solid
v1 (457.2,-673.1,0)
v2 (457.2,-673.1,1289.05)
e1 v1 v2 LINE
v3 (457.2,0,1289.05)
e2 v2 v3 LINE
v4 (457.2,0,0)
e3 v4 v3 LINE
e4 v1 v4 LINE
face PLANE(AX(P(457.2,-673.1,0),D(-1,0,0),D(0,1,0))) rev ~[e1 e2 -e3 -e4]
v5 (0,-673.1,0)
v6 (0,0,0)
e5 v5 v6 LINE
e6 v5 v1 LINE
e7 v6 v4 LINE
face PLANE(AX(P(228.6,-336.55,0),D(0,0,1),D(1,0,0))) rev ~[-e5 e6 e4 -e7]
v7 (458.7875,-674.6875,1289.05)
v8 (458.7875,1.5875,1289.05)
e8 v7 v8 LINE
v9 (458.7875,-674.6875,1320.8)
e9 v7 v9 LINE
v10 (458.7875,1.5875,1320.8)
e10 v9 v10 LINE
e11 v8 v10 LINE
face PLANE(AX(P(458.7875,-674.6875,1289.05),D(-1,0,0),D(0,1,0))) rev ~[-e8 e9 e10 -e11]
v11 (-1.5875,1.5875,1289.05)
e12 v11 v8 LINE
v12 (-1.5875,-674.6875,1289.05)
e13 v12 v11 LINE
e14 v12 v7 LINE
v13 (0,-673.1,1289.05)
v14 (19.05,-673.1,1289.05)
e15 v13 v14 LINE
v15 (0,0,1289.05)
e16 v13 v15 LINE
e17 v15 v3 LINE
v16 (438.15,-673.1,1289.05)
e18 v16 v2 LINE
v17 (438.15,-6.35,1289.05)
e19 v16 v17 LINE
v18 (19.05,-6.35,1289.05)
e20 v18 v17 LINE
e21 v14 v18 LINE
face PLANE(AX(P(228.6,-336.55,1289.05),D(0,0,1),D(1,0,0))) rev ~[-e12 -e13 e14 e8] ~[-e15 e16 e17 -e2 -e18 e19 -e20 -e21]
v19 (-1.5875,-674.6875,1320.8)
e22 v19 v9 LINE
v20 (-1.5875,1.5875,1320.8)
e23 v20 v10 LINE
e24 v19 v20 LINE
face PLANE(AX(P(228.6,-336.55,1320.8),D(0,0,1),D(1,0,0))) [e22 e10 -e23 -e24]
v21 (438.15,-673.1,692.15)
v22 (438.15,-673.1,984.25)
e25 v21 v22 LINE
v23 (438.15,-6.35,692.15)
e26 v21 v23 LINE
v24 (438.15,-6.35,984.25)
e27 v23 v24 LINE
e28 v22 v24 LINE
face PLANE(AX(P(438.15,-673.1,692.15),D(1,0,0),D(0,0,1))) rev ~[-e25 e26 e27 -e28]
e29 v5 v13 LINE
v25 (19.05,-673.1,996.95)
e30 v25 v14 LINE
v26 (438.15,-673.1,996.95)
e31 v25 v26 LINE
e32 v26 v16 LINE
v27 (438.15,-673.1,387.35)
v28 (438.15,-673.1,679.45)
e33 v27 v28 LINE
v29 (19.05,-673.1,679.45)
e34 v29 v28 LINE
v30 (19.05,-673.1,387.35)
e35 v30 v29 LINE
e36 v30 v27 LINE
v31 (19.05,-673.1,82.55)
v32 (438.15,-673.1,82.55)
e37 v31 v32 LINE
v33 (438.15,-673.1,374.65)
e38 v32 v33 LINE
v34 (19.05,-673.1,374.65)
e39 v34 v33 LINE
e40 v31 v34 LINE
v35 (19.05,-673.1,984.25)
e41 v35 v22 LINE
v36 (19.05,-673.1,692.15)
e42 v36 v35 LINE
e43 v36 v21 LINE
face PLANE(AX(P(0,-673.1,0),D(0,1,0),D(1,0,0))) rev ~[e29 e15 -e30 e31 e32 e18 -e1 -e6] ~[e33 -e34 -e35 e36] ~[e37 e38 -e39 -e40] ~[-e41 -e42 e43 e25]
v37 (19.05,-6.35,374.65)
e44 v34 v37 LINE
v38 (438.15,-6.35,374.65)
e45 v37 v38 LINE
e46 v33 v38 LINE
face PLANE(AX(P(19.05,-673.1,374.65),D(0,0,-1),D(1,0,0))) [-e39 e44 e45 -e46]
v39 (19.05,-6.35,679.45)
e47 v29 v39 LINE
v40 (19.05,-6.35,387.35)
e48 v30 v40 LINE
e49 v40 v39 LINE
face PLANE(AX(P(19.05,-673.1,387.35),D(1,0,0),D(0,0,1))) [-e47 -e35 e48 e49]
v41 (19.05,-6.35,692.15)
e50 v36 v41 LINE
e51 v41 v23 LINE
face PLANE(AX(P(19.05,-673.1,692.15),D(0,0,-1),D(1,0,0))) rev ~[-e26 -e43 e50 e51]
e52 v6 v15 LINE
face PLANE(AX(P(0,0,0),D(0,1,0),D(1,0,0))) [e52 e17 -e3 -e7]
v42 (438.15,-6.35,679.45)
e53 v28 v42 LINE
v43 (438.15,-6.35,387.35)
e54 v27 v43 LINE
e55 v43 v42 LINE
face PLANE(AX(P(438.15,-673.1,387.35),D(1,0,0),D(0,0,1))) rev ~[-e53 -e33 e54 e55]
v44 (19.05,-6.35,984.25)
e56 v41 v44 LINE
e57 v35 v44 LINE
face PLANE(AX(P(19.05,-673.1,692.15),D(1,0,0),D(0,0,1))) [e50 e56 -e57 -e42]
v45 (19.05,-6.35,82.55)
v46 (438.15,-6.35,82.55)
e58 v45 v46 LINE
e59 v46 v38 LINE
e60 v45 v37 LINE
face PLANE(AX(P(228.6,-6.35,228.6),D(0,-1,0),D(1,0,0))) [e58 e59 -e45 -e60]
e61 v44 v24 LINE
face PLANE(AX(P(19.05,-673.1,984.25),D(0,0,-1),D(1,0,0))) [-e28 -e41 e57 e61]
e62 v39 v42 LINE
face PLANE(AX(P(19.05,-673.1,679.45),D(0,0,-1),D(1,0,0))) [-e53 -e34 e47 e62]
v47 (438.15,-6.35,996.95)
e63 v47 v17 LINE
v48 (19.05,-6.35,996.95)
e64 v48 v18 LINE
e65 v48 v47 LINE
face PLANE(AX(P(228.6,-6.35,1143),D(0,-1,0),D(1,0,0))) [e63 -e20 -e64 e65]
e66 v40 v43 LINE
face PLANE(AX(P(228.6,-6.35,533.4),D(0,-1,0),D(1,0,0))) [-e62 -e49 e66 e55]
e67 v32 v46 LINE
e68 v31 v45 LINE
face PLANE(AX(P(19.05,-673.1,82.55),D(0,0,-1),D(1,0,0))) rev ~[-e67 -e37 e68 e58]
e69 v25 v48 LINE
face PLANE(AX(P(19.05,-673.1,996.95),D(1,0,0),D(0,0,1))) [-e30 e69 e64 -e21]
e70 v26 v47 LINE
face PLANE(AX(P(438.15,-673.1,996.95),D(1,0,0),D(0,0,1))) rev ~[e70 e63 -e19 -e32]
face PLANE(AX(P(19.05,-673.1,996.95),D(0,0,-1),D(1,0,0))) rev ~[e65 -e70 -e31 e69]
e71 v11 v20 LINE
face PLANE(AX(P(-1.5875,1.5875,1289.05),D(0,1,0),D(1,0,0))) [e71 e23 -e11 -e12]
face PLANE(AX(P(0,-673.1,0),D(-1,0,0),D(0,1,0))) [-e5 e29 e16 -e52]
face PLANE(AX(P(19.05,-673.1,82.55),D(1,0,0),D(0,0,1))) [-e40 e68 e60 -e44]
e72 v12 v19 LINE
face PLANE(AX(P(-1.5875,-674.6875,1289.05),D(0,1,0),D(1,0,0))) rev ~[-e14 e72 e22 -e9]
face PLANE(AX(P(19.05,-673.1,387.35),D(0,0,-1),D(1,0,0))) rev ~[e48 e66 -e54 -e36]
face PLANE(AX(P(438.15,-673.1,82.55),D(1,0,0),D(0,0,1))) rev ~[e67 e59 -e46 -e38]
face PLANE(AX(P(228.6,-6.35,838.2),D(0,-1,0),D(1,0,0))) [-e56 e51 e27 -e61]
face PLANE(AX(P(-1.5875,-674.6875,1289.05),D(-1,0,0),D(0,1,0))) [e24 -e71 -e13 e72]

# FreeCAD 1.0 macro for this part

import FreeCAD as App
import Part
import Sketcher

V = App.Vector
Q = App.Units.Quantity


def add_polygon(sketch, points):
    """Adds a closed chain of lines whose ends are joined by coincident constraints."""
    first, n = sketch.GeometryCount, len(points)
    for a, b in zip(points, points[1:] + points[:1]):
        sketch.addGeometry(Part.LineSegment(App.Vector(*a, 0), App.Vector(*b, 0)), False)
    for i in range(n):
        sketch.addConstraint(Sketcher.Constraint("Coincident", first + i, 2, first + (i + 1) % n, 1))

doc = App.newDocument("Part")
body = doc.addObject("PartDesign::Body", "Body")

# Sketch on XY plane
sketch1 = body.newObject("Sketcher::SketchObject", "Sketch")
sketch1.AttachmentSupport = (doc.getObject("XY_Plane"), [""])
sketch1.MapMode = "FlatFace"
add_polygon(sketch1, [(0, 0), (0, -673), (457, -673), (457, 0)])  # lines 0-3
sketch1.addConstraint(Sketcher.Constraint("Vertical", 0))
sketch1.addConstraint(Sketcher.Constraint("Horizontal", 1))
sketch1.addConstraint(Sketcher.Constraint("Vertical", 2))
sketch1.addConstraint(Sketcher.Constraint("Horizontal", 3))
sketch1.addConstraint(Sketcher.Constraint("Coincident", 3, 2, -1, 1))
sketch1.addConstraint(Sketcher.Constraint("DistanceX", 1, 1, 1, 2, Q("18 in")))
sketch1.addConstraint(Sketcher.Constraint("DistanceY", 0, 2, 0, 1, Q("26.5 in")))
pad1 = body.newObject("PartDesign::Pad", "Pad")
pad1.Profile = sketch1
pad1.Length = Q("50.75 in")

# Sketch on XY plane
sketch2 = body.newObject("Sketcher::SketchObject", "Sketch001")
sketch2.AttachmentSupport = (doc.getObject("XY_Plane"), [""])
sketch2.MapMode = "FlatFace"
sketch2.AttachmentOffset = App.Placement(V(0, 0, 50.75 * 25.4), App.Rotation())
add_polygon(sketch2, [(-2, 2), (-2, -675), (459, -675), (459, 2)])  # lines 0-3
sketch2.addConstraint(Sketcher.Constraint("Vertical", 0))
sketch2.addConstraint(Sketcher.Constraint("Horizontal", 1))
sketch2.addConstraint(Sketcher.Constraint("Vertical", 2))
sketch2.addConstraint(Sketcher.Constraint("Horizontal", 3))
sketch2.addConstraint(Sketcher.Constraint("DistanceX", 1, 1, 1, 2, Q("18.125 in")))
sketch2.addConstraint(Sketcher.Constraint("DistanceY", 0, 2, 0, 1, Q("26.625 in")))
sketch2.addConstraint(Sketcher.Constraint("DistanceX", 0, 2, -1, 1, Q("0.0625 in")))
sketch2.addConstraint(Sketcher.Constraint("DistanceY", 0, 2, -1, 1, Q("26.5625 in")))
pad2 = body.newObject("PartDesign::Pad", "Pad001")
pad2.Profile = sketch2
pad2.Length = Q("1.25 in")

# Sketch on XZ plane
sketch3 = body.newObject("Sketcher::SketchObject", "Sketch002")
sketch3.AttachmentSupport = (doc.getObject("XZ_Plane"), [""])
sketch3.MapMode = "FlatFace"
sketch3.AttachmentOffset = App.Placement(V(0, 0, 26.5 * 25.4), App.Rotation())
add_polygon(sketch3, [(19, 1289), (19, 997), (438, 997), (438, 1289)])  # lines 0-3
add_polygon(sketch3, [(19, 984), (19, 692), (438, 692), (438, 984)])  # lines 4-7
add_polygon(sketch3, [(19, 679), (19, 387), (438, 387), (438, 679)])  # lines 8-11
add_polygon(sketch3, [(19, 375), (19, 83), (438, 83), (438, 375)])  # lines 12-15
sketch3.addConstraint(Sketcher.Constraint("Vertical", 0))
sketch3.addConstraint(Sketcher.Constraint("Horizontal", 1))
sketch3.addConstraint(Sketcher.Constraint("Vertical", 2))
sketch3.addConstraint(Sketcher.Constraint("Horizontal", 3))
sketch3.addConstraint(Sketcher.Constraint("Vertical", 4))
sketch3.addConstraint(Sketcher.Constraint("Horizontal", 5))
sketch3.addConstraint(Sketcher.Constraint("Vertical", 6))
sketch3.addConstraint(Sketcher.Constraint("Horizontal", 7))
sketch3.addConstraint(Sketcher.Constraint("Vertical", 8))
sketch3.addConstraint(Sketcher.Constraint("Horizontal", 9))
sketch3.addConstraint(Sketcher.Constraint("Vertical", 10))
sketch3.addConstraint(Sketcher.Constraint("Horizontal", 11))
sketch3.addConstraint(Sketcher.Constraint("Vertical", 12))
sketch3.addConstraint(Sketcher.Constraint("Horizontal", 13))
sketch3.addConstraint(Sketcher.Constraint("Vertical", 14))
sketch3.addConstraint(Sketcher.Constraint("Horizontal", 15))
sketch3.addConstraint(Sketcher.Constraint("Vertical", 3, 2, 4, 2))
sketch3.addConstraint(Sketcher.Constraint("Vertical", 2, 2, 5, 2))
sketch3.addConstraint(Sketcher.Constraint("Vertical", 7, 2, 8, 2))
sketch3.addConstraint(Sketcher.Constraint("Vertical", 6, 2, 9, 2))
sketch3.addConstraint(Sketcher.Constraint("Vertical", 11, 2, 12, 2))
sketch3.addConstraint(Sketcher.Constraint("Vertical", 10, 2, 13, 2))
sketch3.addConstraint(Sketcher.Constraint("Equal", 2, 4))
sketch3.addConstraint(Sketcher.Constraint("Equal", 6, 8))
sketch3.addConstraint(Sketcher.Constraint("Equal", 10, 12))
sketch3.addConstraint(Sketcher.Constraint("DistanceX", 1, 1, 1, 2, Q("16.5 in")))
sketch3.addConstraint(Sketcher.Constraint("DistanceY", 0, 2, 0, 1, Q("11.5 in")))
sketch3.addConstraint(Sketcher.Constraint("DistanceY", 4, 2, 0, 2, Q("12 in")))
sketch3.addConstraint(Sketcher.Constraint("DistanceY", 8, 2, 4, 2, Q("12 in")))
sketch3.addConstraint(Sketcher.Constraint("DistanceY", 12, 2, 8, 2, Q("12 in")))
sketch3.addConstraint(Sketcher.Constraint("DistanceX", -1, 1, 0, 2, Q("0.75 in")))
sketch3.addConstraint(Sketcher.Constraint("DistanceY", -1, 1, 0, 2, Q("39.25 in")))
pocket1 = body.newObject("PartDesign::Pocket", "Pocket")
pocket1.Profile = sketch3
pocket1.Length = Q("26.25 in")

doc.recompute()
